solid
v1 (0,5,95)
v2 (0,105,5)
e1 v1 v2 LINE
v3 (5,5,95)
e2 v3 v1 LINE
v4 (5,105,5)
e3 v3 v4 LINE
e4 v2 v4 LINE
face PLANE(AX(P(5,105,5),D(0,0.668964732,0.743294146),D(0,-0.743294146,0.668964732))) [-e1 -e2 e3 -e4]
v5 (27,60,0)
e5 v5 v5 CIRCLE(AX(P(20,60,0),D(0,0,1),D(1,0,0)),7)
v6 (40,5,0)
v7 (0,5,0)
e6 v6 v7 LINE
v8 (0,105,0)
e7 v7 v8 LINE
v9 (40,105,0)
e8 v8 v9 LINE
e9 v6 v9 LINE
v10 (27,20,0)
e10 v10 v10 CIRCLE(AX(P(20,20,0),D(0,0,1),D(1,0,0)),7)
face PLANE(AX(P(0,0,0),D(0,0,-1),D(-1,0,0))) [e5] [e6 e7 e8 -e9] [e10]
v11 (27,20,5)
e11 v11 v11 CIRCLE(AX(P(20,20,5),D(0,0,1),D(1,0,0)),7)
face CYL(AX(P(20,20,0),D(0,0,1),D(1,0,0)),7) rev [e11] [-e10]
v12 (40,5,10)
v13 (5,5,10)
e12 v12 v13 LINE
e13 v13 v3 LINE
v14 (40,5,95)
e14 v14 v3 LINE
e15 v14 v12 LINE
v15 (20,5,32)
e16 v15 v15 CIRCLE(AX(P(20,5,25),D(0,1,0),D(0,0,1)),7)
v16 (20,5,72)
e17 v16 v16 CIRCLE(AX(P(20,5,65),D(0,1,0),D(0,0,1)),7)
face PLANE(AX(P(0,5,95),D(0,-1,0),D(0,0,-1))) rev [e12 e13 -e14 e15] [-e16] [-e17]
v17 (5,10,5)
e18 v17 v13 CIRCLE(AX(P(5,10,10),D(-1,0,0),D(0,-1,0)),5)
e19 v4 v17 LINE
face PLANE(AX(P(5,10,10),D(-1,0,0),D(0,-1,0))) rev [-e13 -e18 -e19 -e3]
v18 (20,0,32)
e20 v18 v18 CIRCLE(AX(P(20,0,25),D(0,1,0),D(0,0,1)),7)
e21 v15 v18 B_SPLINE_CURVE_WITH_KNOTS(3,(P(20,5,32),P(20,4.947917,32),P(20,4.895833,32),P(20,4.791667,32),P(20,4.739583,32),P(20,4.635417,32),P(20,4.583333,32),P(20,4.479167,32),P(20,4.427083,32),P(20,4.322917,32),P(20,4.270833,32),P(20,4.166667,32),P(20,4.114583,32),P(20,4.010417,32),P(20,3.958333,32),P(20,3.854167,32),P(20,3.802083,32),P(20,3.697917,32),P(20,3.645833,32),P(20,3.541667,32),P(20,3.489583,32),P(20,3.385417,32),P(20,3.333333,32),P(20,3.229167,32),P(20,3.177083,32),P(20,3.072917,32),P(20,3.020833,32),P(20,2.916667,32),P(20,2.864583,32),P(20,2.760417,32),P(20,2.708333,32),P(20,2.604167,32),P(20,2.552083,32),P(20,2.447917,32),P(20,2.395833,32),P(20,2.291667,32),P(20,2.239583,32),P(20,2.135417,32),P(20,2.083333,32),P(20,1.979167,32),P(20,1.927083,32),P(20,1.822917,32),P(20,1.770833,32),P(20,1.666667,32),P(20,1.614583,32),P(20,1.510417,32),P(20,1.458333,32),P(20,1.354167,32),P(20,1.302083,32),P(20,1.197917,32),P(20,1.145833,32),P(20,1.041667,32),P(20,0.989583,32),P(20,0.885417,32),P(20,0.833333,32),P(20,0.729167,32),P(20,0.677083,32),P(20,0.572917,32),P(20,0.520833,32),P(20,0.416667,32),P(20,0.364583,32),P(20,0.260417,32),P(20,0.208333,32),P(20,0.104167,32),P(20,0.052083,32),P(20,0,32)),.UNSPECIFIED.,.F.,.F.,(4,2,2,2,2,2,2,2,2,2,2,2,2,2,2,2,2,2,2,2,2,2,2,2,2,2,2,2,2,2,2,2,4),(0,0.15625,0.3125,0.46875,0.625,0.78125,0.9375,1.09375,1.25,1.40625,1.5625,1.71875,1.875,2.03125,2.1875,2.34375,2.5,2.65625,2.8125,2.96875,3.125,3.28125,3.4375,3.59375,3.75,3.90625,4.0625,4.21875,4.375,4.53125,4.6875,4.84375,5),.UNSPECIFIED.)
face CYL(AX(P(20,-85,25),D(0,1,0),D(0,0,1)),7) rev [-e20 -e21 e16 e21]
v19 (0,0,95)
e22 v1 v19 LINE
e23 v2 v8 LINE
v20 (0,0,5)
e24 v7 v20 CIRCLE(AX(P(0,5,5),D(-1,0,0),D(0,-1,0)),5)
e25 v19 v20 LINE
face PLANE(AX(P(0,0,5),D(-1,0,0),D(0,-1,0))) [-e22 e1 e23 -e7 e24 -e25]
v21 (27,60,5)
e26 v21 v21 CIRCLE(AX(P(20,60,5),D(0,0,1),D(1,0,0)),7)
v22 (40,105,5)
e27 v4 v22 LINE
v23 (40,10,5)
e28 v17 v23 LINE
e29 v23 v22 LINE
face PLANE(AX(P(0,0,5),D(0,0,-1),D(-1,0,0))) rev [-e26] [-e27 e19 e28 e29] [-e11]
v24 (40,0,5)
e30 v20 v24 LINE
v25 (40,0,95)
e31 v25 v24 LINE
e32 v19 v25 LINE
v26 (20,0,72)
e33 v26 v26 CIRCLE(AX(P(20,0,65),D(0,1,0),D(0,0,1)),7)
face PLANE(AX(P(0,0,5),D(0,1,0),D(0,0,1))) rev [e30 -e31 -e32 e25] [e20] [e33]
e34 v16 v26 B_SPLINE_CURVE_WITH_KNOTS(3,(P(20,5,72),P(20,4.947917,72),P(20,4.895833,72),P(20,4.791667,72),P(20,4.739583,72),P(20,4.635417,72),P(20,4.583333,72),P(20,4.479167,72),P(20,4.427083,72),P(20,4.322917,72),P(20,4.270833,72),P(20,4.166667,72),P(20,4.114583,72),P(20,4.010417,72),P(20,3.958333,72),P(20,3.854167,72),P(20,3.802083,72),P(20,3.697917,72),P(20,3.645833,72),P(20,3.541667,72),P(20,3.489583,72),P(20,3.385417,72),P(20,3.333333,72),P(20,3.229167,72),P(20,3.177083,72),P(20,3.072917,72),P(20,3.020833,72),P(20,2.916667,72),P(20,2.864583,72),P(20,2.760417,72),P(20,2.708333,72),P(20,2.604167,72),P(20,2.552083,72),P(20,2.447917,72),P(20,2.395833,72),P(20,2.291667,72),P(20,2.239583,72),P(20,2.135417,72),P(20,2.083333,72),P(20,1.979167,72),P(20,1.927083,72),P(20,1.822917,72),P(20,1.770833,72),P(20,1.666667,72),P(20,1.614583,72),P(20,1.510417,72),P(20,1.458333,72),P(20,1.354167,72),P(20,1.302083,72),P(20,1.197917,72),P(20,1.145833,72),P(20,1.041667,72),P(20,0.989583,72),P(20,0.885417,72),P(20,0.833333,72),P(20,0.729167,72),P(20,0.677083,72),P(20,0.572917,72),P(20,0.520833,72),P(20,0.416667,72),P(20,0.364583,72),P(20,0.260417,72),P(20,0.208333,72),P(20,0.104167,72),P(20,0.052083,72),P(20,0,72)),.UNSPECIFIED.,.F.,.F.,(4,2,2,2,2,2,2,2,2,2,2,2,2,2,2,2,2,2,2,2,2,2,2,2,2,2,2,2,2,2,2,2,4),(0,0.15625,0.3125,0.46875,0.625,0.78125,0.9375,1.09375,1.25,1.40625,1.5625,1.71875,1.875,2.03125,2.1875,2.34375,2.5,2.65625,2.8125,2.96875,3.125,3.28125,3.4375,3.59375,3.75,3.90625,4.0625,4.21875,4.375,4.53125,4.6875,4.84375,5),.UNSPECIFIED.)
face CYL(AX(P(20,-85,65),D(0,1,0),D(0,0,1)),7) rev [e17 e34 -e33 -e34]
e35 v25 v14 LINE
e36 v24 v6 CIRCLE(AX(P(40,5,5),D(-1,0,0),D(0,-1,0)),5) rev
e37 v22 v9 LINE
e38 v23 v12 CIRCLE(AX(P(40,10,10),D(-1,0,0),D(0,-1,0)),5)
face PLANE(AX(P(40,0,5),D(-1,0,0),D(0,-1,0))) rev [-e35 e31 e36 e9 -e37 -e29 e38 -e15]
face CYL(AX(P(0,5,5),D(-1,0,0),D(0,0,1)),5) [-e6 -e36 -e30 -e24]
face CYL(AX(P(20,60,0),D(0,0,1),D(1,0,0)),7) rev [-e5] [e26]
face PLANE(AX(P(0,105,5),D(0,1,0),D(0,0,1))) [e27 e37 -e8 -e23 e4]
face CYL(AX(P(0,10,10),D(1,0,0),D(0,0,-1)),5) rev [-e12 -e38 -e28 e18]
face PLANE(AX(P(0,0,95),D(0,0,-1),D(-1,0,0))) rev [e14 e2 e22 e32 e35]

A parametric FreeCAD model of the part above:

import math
import FreeCAD as App
import Part
import Sketcher
Q = App.Units.Quantity


def edges_at(feature, points):
    """Names of the edges that pass closest to the given points."""
    edges = feature.Shape.Edges
    near = lambda p: min(range(len(edges)), key=lambda i: edges[i].distToShape(Part.Vertex(*p))[0])
    return sorted({f"Edge{near(p) + 1}" for p in points})

doc = App.newDocument("Part")
body = doc.addObject("PartDesign::Body", "Body")

# Sketch on XY plane
sketch1 = doc.addObject("Sketcher::SketchObject", "Sketch")
body.addObject(sketch1)
sketch1.AttachmentSupport = (doc.XY_Plane, [""])
sketch1.MapMode = "FlatFace"
sketch1.addGeometry([
    Part.LineSegment(App.Vector(0, 105, 0), App.Vector(0, 0, 0)),
    Part.LineSegment(App.Vector(0, 0, 0), App.Vector(40, 0, 0)),
    Part.LineSegment(App.Vector(40, 0, 0), App.Vector(40, 105, 0)),
    Part.LineSegment(App.Vector(40, 105, 0), App.Vector(0, 105, 0)),
], False)
sketch1.addConstraint([
    Sketcher.Constraint("Coincident", 0, 2, 1, 1),
    Sketcher.Constraint("Coincident", 1, 2, 2, 1),
    Sketcher.Constraint("Coincident", 2, 2, 3, 1),
    Sketcher.Constraint("Coincident", 3, 2, 0, 1),
    Sketcher.Constraint("Vertical", 0),
    Sketcher.Constraint("Horizontal", 1),
    Sketcher.Constraint("Vertical", 2),
    Sketcher.Constraint("Horizontal", 3),
    Sketcher.Constraint("Coincident", 0, 2, -1, 1),
    Sketcher.Constraint("DistanceX", 1, 1, 1, 2, Q("40 mm")),
    Sketcher.Constraint("DistanceY", 0, 2, 0, 1, Q("105 mm")),
])
pad1 = doc.addObject("PartDesign::Pad", "Pad")
body.addObject(pad1)
pad1.Profile = sketch1
pad1.Length = 5

# Sketch on XY plane
sketch2 = doc.addObject("Sketcher::SketchObject", "Sketch001")
body.addObject(sketch2)
sketch2.AttachmentSupport = (doc.XY_Plane, [""])
sketch2.MapMode = "FlatFace"
sketch2.AttachmentOffset = App.Placement(App.Vector(0, 0, 5), App.Rotation())
sketch2.addGeometry(Part.Circle(App.Vector(20, 60, 0), App.Vector(0, 0, 1), 7), False)
sketch2.addConstraint([
    Sketcher.Constraint("Diameter", 0, Q("14 mm")),
    Sketcher.Constraint("DistanceX", -1, 1, 0, 3, Q("20 mm")),
    Sketcher.Constraint("DistanceY", -1, 1, 0, 3, Q("60 mm")),
])
pocket1 = doc.addObject("PartDesign::Pocket", "Pocket")
body.addObject(pocket1)
pocket1.Profile = sketch2
pocket1.Length = 5

# Sketch on XY plane
sketch3 = doc.addObject("Sketcher::SketchObject", "Sketch002")
body.addObject(sketch3)
sketch3.AttachmentSupport = (doc.XY_Plane, [""])
sketch3.MapMode = "FlatFace"
sketch3.AttachmentOffset = App.Placement(App.Vector(0, 0, 5), App.Rotation())
sketch3.addGeometry(Part.Circle(App.Vector(20, 20, 0), App.Vector(0, 0, 1), 7), False)
sketch3.addConstraint([
    Sketcher.Constraint("Diameter", 0, Q("14 mm")),
    Sketcher.Constraint("DistanceX", -1, 1, 0, 3, Q("20 mm")),
    Sketcher.Constraint("DistanceY", -1, 1, 0, 3, Q("20 mm")),
])
pocket2 = doc.addObject("PartDesign::Pocket", "Pocket001")
body.addObject(pocket2)
pocket2.Profile = sketch3
pocket2.Length = 5

# Sketch on XY plane
sketch4 = doc.addObject("Sketcher::SketchObject", "Sketch003")
body.addObject(sketch4)
sketch4.AttachmentSupport = (doc.XY_Plane, [""])
sketch4.MapMode = "FlatFace"
sketch4.AttachmentOffset = App.Placement(App.Vector(0, 0, 5), App.Rotation())
sketch4.addGeometry([
    Part.LineSegment(App.Vector(0, 5, 0), App.Vector(0, 0, 0)),
    Part.LineSegment(App.Vector(0, 0, 0), App.Vector(40, 0, 0)),
    Part.LineSegment(App.Vector(40, 0, 0), App.Vector(40, 5, 0)),
    Part.LineSegment(App.Vector(40, 5, 0), App.Vector(0, 5, 0)),
], False)
sketch4.addConstraint([
    Sketcher.Constraint("Coincident", 0, 2, 1, 1),
    Sketcher.Constraint("Coincident", 1, 2, 2, 1),
    Sketcher.Constraint("Coincident", 2, 2, 3, 1),
    Sketcher.Constraint("Coincident", 3, 2, 0, 1),
    Sketcher.Constraint("Vertical", 0),
    Sketcher.Constraint("Horizontal", 1),
    Sketcher.Constraint("Vertical", 2),
    Sketcher.Constraint("Horizontal", 3),
    Sketcher.Constraint("Coincident", 0, 2, -1, 1),
    Sketcher.Constraint("DistanceX", 1, 1, 1, 2, Q("40 mm")),
    Sketcher.Constraint("DistanceY", 0, 2, 0, 1, Q("5 mm")),
])
pad2 = doc.addObject("PartDesign::Pad", "Pad001")
body.addObject(pad2)
pad2.Profile = sketch4
pad2.Length = 90

# Sketch on XZ plane
sketch5 = doc.addObject("Sketcher::SketchObject", "Sketch004")
body.addObject(sketch5)
sketch5.AttachmentSupport = (doc.XZ_Plane, [""])
sketch5.MapMode = "FlatFace"
sketch5.AttachmentOffset = App.Placement(App.Vector(0, 0, -5), App.Rotation())
sketch5.addGeometry(Part.Circle(App.Vector(20, 25, 0), App.Vector(0, 0, 1), 7), False)
sketch5.addConstraint([
    Sketcher.Constraint("Diameter", 0, Q("14 mm")),
    Sketcher.Constraint("DistanceX", -1, 1, 0, 3, Q("20 mm")),
    Sketcher.Constraint("DistanceY", -1, 1, 0, 3, Q("25 mm")),
])
pocket3 = doc.addObject("PartDesign::Pocket", "Pocket002")
body.addObject(pocket3)
pocket3.Profile = sketch5
pocket3.Length = 90
pocket3.Reversed = True

# Sketch on XZ plane
sketch6 = doc.addObject("Sketcher::SketchObject", "Sketch005")
body.addObject(sketch6)
sketch6.AttachmentSupport = (doc.XZ_Plane, [""])
sketch6.MapMode = "FlatFace"
sketch6.AttachmentOffset = App.Placement(App.Vector(0, 0, -5), App.Rotation())
sketch6.addGeometry([
    Part.Circle(App.Vector(20, 25, 0), App.Vector(0, 0, 1), 7),
    Part.Circle(App.Vector(20, 65, 0), App.Vector(0, 0, 1), 7),
], False)
sketch6.addConstraint([
    Sketcher.Constraint("Equal", 0, 1),
    Sketcher.Constraint("Vertical", 0, 3, 1, 3),
    Sketcher.Constraint("Diameter", 0, Q("14 mm")),
    Sketcher.Constraint("DistanceX", -1, 1, 0, 3, Q("20 mm")),
    Sketcher.Constraint("DistanceY", -1, 1, 0, 3, Q("25 mm")),
    Sketcher.Constraint("DistanceY", -1, 1, 1, 3, Q("65 mm")),
])
pocket4 = doc.addObject("PartDesign::Pocket", "Pocket003")
body.addObject(pocket4)
pocket4.Profile = sketch6
pocket4.Length = 90
pocket4.Reversed = True
doc.recompute()

fillet = doc.addObject("PartDesign::Fillet", "Fillet")
body.addObject(fillet)
fillet.Base = (pocket4, edges_at(pocket4, [(20, 5, 5)]))
fillet.Radius = 5
doc.recompute()

fillet2 = doc.addObject("PartDesign::Fillet", "Fillet001")
body.addObject(fillet2)
fillet2.Base = (fillet, edges_at(fillet, [(20, 0, 0)]))
fillet2.Radius = 5

# Sketch on YZ plane
sketch7 = doc.addObject("Sketcher::SketchObject", "Sketch006")
body.addObject(sketch7)
sketch7.AttachmentSupport = (doc.YZ_Plane, [""])
sketch7.MapMode = "FlatFace"
sketch7.AttachmentOffset = App.Placement(App.Vector(0, 0, 5), App.Rotation())
sketch7.addGeometry([
    Part.LineSegment(App.Vector(5, 95, 0), App.Vector(105, 5, 0)),
    Part.LineSegment(App.Vector(105, 5, 0), App.Vector(10, 5, 0)),
    Part.ArcOfCircle(Part.Circle(App.Vector(10, 10, 0), App.Vector(0, 0, 1), 5), math.radians(180), math.radians(270)),
    Part.LineSegment(App.Vector(5, 10, 0), App.Vector(5, 95, 0)),
], False)
sketch7.addConstraint([
    Sketcher.Constraint("Coincident", 0, 2, 1, 1),
    Sketcher.Constraint("Tangent", 1, 2, 2, 2),
    Sketcher.Constraint("Tangent", 2, 1, 3, 1),
    Sketcher.Constraint("Coincident", 3, 2, 0, 1),
    Sketcher.Constraint("Horizontal", 1),
    Sketcher.Constraint("Vertical", 3),
    Sketcher.Constraint("Radius", 2, Q("5 mm")),
    Sketcher.Constraint("DistanceX", 1, 2, 1, 1, Q("95 mm")),
    Sketcher.Constraint("DistanceY", 3, 1, 3, 2, Q("85 mm")),
    Sketcher.Constraint("DistanceX", -1, 1, 2, 3, Q("10 mm")),
    Sketcher.Constraint("DistanceY", -1, 1, 2, 3, Q("10 mm")),
])
pad3 = doc.addObject("PartDesign::Pad", "Pad002")
body.addObject(pad3)
pad3.Profile = sketch7
pad3.Length = 5
pad3.Reversed = True

doc.recompute()
